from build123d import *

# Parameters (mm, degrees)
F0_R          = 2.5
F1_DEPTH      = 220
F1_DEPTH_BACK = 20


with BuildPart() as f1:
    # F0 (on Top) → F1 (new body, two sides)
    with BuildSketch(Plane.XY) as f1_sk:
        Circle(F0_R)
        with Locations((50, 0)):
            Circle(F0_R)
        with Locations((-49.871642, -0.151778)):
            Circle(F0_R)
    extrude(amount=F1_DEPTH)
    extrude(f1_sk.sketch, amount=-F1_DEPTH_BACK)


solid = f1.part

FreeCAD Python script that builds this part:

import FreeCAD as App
import Part
import Sketcher

doc = App.newDocument("Part")
params = doc.addObject("Spreadsheet::Sheet", "Params")
for row, (alias, value) in enumerate([
    ("sketch1_diameter", "5 mm"),
    ("pad1_length", "220 mm"),
    ("pad1_length2", "20 mm"),
], start=1):
    params.set(f"A{row}", alias)
    params.set(f"B{row}", "=" + value)
    params.setAlias(f"B{row}", alias)

body = doc.addObject("PartDesign::Body", "Body")
body.AllowCompound = True

# Sketch on XY plane
sketch1 = body.newObject("Sketcher::SketchObject", "Sketch")
sketch1.AttachmentSupport = (doc.getObject("XY_Plane"), [""])
sketch1.MapMode = "FlatFace"
sketch1.addGeometry(Part.Circle(App.Vector(0, 0, 0), App.Vector(0, 0, 1), 2.5), False)
sketch1.addGeometry(Part.Circle(App.Vector(50, 0, 0), App.Vector(0, 0, 1), 2.5), False)
sketch1.addGeometry(Part.Circle(App.Vector(-49.9, -0.2, 0), App.Vector(0, 0, 1), 2.5), False)
sketch1.addConstraint(Sketcher.Constraint("Coincident", 0, 3, -1, 1))
sketch1.addConstraint(Sketcher.Constraint("Equal", 0, 1))
sketch1.addConstraint(Sketcher.Constraint("Equal", 1, 2))
sketch1.addConstraint(Sketcher.Constraint("PointOnObject", 1, 3, -1))
sketch1.addConstraint(Sketcher.Constraint("Diameter", 0, 5.0))
sketch1.addConstraint(Sketcher.Constraint("DistanceX", -1, 1, 1, 3, 50.0))
sketch1.addConstraint(Sketcher.Constraint("DistanceX", 2, 3, -1, 1, 49.871642))
sketch1.addConstraint(Sketcher.Constraint("DistanceY", 2, 3, -1, 1, 0.151778))
sketch1.setExpression("Constraints[4]", "Params.sketch1_diameter")
pad1 = body.newObject("PartDesign::Pad", "Pad")
pad1.Profile = sketch1
pad1.Type = "TwoLengths"
pad1.setExpression("Length", "Params.pad1_length")
pad1.setExpression("Length2", "Params.pad1_length2")

doc.recompute()
